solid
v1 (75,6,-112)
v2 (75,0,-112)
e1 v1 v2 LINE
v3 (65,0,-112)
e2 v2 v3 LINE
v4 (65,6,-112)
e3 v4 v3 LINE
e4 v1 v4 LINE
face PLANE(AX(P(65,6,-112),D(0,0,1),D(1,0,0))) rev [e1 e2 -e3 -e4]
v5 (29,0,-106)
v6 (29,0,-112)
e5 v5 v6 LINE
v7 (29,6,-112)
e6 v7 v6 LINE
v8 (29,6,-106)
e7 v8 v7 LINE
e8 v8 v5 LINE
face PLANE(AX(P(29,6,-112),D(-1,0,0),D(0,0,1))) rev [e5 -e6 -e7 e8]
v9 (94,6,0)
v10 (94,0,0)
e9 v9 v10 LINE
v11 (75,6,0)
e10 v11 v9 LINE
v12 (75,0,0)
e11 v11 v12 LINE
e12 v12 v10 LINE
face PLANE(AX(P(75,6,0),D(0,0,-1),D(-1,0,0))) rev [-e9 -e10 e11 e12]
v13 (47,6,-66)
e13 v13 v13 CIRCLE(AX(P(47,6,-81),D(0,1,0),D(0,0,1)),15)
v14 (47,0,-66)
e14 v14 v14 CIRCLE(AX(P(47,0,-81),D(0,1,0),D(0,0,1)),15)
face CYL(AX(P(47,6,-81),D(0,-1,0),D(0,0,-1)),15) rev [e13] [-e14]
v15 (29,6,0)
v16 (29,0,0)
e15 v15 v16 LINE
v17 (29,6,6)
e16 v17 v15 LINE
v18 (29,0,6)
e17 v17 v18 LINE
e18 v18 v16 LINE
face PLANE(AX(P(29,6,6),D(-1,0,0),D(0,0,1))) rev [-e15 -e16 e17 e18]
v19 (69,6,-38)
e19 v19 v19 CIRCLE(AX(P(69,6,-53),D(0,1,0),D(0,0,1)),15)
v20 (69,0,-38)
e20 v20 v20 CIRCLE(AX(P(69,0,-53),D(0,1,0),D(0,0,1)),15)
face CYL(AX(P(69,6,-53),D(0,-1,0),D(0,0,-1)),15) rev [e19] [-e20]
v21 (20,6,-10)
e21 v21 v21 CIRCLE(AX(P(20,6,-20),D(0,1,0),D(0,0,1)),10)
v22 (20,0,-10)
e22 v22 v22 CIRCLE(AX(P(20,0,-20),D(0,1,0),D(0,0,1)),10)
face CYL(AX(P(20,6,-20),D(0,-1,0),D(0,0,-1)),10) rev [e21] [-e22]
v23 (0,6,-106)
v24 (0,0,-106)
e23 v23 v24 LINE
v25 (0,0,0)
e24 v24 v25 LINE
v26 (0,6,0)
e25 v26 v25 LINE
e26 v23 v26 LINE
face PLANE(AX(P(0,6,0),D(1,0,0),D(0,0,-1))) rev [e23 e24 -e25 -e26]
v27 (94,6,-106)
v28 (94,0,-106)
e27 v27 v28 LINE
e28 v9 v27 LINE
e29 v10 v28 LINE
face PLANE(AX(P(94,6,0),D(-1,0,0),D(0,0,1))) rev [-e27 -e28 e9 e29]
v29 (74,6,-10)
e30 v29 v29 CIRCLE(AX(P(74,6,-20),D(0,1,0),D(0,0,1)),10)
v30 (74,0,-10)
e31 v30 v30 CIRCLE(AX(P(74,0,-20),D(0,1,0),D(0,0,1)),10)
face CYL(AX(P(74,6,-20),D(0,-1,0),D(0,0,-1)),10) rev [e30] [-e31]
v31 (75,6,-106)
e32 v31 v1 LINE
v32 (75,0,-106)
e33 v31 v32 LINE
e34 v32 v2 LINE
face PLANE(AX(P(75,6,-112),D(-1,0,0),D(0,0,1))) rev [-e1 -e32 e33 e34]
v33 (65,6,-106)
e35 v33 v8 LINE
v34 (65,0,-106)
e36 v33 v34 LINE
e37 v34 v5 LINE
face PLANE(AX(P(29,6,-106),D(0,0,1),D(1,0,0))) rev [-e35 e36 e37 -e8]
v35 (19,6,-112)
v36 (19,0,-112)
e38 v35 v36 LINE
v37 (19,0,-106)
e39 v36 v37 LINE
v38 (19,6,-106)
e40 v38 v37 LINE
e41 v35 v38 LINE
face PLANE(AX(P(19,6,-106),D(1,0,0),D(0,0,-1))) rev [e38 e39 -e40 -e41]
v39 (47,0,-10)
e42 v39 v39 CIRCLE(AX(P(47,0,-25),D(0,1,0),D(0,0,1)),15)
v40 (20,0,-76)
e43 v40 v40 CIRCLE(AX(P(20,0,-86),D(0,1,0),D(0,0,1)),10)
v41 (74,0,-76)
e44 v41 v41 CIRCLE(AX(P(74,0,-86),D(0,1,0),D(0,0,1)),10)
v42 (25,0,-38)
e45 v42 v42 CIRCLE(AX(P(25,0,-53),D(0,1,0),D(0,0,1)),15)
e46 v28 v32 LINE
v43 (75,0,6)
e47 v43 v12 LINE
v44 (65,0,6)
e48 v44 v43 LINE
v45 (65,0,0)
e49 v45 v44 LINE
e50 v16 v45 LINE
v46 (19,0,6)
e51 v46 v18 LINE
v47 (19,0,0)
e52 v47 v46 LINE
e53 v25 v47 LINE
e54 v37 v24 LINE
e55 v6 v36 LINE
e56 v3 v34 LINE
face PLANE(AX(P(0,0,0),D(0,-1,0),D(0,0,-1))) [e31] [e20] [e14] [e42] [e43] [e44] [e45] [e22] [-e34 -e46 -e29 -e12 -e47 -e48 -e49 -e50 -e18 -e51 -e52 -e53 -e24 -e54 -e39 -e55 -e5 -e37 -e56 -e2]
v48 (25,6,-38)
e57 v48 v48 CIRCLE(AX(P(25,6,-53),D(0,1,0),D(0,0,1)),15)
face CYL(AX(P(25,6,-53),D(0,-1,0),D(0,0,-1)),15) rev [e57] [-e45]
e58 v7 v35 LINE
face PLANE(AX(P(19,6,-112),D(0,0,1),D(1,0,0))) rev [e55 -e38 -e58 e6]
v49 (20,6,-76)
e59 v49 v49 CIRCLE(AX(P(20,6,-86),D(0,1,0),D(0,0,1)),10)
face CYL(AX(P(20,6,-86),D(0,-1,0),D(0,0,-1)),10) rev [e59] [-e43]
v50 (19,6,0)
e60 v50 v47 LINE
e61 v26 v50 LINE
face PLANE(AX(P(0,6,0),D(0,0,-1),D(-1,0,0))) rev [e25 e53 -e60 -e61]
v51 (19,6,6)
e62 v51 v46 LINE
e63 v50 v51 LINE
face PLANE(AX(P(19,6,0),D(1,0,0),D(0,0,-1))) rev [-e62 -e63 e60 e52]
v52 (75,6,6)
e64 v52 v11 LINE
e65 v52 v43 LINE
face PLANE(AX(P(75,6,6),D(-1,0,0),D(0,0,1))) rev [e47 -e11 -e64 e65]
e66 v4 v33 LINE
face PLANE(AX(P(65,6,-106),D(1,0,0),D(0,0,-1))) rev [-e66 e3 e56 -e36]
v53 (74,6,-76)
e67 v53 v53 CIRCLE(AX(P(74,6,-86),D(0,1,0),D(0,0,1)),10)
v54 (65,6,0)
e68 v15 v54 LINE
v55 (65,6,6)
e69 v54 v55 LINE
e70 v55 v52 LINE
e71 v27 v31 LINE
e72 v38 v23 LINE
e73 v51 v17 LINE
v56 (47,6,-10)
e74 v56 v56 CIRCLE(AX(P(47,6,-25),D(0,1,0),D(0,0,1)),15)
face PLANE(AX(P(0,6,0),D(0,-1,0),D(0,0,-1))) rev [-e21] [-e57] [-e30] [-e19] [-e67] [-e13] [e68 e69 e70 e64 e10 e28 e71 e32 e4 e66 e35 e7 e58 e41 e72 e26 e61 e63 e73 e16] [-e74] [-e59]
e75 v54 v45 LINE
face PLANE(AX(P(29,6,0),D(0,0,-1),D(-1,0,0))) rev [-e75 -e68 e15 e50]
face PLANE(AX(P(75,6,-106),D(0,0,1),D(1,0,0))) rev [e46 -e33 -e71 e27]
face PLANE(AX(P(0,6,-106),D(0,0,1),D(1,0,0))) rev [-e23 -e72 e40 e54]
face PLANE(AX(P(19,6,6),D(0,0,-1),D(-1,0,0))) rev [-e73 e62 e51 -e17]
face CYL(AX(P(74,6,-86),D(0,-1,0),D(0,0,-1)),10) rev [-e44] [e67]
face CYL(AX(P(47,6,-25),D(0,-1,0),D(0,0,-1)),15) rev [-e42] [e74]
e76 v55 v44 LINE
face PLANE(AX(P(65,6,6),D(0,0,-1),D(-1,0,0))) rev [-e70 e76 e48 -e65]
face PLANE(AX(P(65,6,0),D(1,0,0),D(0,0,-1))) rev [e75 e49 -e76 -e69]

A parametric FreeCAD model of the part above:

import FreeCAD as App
import Part
import Sketcher

V = App.Vector


def add_polygon(sketch, points):
    """Adds a closed chain of lines whose ends are joined by coincident constraints."""
    first, n = sketch.GeometryCount, len(points)
    for a, b in zip(points, points[1:] + points[:1]):
        sketch.addGeometry(Part.LineSegment(App.Vector(*a, 0), App.Vector(*b, 0)), False)
    for i in range(n):
        sketch.addConstraint(Sketcher.Constraint("Coincident", first + i, 2, first + (i + 1) % n, 1))

doc = App.newDocument("Part")
params = doc.addObject("Spreadsheet::Sheet", "Params")
for row, (alias, value) in enumerate([
    ("sketch1_diameter", "20 mm"),
    ("sketch1_diameter2", "30 mm"),
    ("sketch1_width", "19 mm"),
    ("sketch1_width2", "10 mm"),
    ("sketch1_width3", "36 mm"),
    ("pad1_length", "6 mm"),
], start=1):
    params.set(f"A{row}", alias)
    params.set(f"B{row}", "=" + value)
    params.setAlias(f"B{row}", alias)

body = doc.addObject("PartDesign::Body", "Body")

# Sketch on XZ plane
sketch1 = body.newObject("Sketcher::SketchObject", "Sketch")
sketch1.AttachmentSupport = (doc.getObject("XZ_Plane"), [""])
sketch1.MapMode = "FlatFace"
add_polygon(sketch1, [(0, 0), (19, 0), (19, 6), (29, 6), (29, 0), (65, 0), (65, 6), (75, 6), (75, 0), (94, 0), (94, -106), (75, -106), (75, -112), (65, -112), (65, -106), (29, -106), (29, -112), (19, -112), (19, -106), (0, -106)])  # lines 0-19
sketch1.addGeometry(Part.Circle(V(20, -20, 0), V(0, 0, 1), 10), False)  # 20
sketch1.addGeometry(Part.Circle(V(47, -25, 0), V(0, 0, 1), 15), False)  # 21
sketch1.addGeometry(Part.Circle(V(74, -20, 0), V(0, 0, 1), 10), False)  # 22
sketch1.addGeometry(Part.Circle(V(25, -53, 0), V(0, 0, 1), 15), False)  # 23
sketch1.addGeometry(Part.Circle(V(20, -86, 0), V(0, 0, 1), 10), False)  # 24
sketch1.addGeometry(Part.Circle(V(69, -53, 0), V(0, 0, 1), 15), False)  # 25
sketch1.addGeometry(Part.Circle(V(47, -81, 0), V(0, 0, 1), 15), False)  # 26
sketch1.addGeometry(Part.Circle(V(74, -86, 0), V(0, 0, 1), 10), False)  # 27
sketch1.addConstraint([
    Sketcher.Constraint("Horizontal", 0),
    Sketcher.Constraint("Vertical", 1),
    Sketcher.Constraint("Horizontal", 2),
    Sketcher.Constraint("Vertical", 3),
    Sketcher.Constraint("Horizontal", 4),
    Sketcher.Constraint("Vertical", 5),
    Sketcher.Constraint("Horizontal", 6),
    Sketcher.Constraint("Vertical", 7),
    Sketcher.Constraint("Horizontal", 8),
    Sketcher.Constraint("Vertical", 9),
    Sketcher.Constraint("Horizontal", 10),
    Sketcher.Constraint("Vertical", 11),
    Sketcher.Constraint("Horizontal", 12),
    Sketcher.Constraint("Vertical", 13),
    Sketcher.Constraint("Horizontal", 14),
    Sketcher.Constraint("Vertical", 15),
    Sketcher.Constraint("Horizontal", 16),
    Sketcher.Constraint("Vertical", 17),
    Sketcher.Constraint("Horizontal", 18),
    Sketcher.Constraint("Vertical", 19),
    Sketcher.Constraint("Coincident", 19, 2, -1, 1),
    Sketcher.Constraint("Equal", 20, 22),
    Sketcher.Constraint("Equal", 21, 23),
    Sketcher.Constraint("Equal", 22, 24),
    Sketcher.Constraint("Equal", 23, 25),
    Sketcher.Constraint("Equal", 25, 26),
    Sketcher.Constraint("Equal", 24, 27),
    Sketcher.Constraint("PointOnObject", 3, 2, -1),
    Sketcher.Constraint("PointOnObject", 7, 2, -1),
    Sketcher.Constraint("Horizontal", 20, 3, 22, 3),
    Sketcher.Constraint("Horizontal", 23, 3, 25, 3),
    Sketcher.Constraint("Horizontal", 24, 3, 27, 3),
    Sketcher.Constraint("Horizontal", 2, 2, 5, 2),
    Sketcher.Constraint("Horizontal", 10, 2, 13, 2),
    Sketcher.Constraint("Horizontal", 12, 2, 15, 2),
    Sketcher.Constraint("Horizontal", 14, 2, 17, 2),
    Sketcher.Constraint("Vertical", 20, 3, 24, 3),
    Sketcher.Constraint("Vertical", 21, 3, 26, 3),
    Sketcher.Constraint("Vertical", 22, 3, 27, 3),
    Sketcher.Constraint("Vertical", 7, 2, 10, 2),
    Sketcher.Constraint("Vertical", 5, 2, 12, 2),
    Sketcher.Constraint("Vertical", 3, 2, 14, 2),
    Sketcher.Constraint("Vertical", 1, 2, 16, 2),
    Sketcher.Constraint("Equal", 2, 6),
    Sketcher.Constraint("Equal", 0, 8),
    Sketcher.Constraint("Equal", 7, 11),
    Sketcher.Constraint("Diameter", 20, 20.0),
    Sketcher.Constraint("Diameter", 21, 30.0),
    Sketcher.Constraint("DistanceX", 0, 1, 0, 2, 19.0),
    Sketcher.Constraint("DistanceX", 2, 1, 2, 2, 10.0),
    Sketcher.Constraint("DistanceX", 4, 1, 4, 2, 36.0),
    Sketcher.Constraint("DistanceY", 1, 1, 1, 2, 6.0),
    Sketcher.Constraint("DistanceY", 9, 2, 9, 1, 106.0),
    Sketcher.Constraint("DistanceX", -1, 1, 20, 3, 20.0),
    Sketcher.Constraint("DistanceY", 20, 3, -1, 1, 20.0),
    Sketcher.Constraint("DistanceX", -1, 1, 21, 3, 47.0),
    Sketcher.Constraint("DistanceY", 21, 3, -1, 1, 25.0),
    Sketcher.Constraint("DistanceX", -1, 1, 22, 3, 74.0),
    Sketcher.Constraint("DistanceX", -1, 1, 23, 3, 25.0),
    Sketcher.Constraint("DistanceY", 23, 3, -1, 1, 53.0),
    Sketcher.Constraint("DistanceY", 24, 3, -1, 1, 86.0),
    Sketcher.Constraint("DistanceX", -1, 1, 25, 3, 69.0),
    Sketcher.Constraint("DistanceY", 26, 3, -1, 1, 81.0),
])
sketch1.setExpression("Constraints[66]", "Params.sketch1_diameter")
sketch1.setExpression("Constraints[67]", "Params.sketch1_diameter2")
sketch1.setExpression("Constraints[68]", "Params.sketch1_width")
sketch1.setExpression("Constraints[69]", "Params.sketch1_width2")
sketch1.setExpression("Constraints[70]", "Params.sketch1_width3")
pad1 = body.newObject("PartDesign::Pad", "Pad")
pad1.Profile = sketch1
pad1.setExpression("Length", "Params.pad1_length")
pad1.Reversed = True

doc.recompute()
